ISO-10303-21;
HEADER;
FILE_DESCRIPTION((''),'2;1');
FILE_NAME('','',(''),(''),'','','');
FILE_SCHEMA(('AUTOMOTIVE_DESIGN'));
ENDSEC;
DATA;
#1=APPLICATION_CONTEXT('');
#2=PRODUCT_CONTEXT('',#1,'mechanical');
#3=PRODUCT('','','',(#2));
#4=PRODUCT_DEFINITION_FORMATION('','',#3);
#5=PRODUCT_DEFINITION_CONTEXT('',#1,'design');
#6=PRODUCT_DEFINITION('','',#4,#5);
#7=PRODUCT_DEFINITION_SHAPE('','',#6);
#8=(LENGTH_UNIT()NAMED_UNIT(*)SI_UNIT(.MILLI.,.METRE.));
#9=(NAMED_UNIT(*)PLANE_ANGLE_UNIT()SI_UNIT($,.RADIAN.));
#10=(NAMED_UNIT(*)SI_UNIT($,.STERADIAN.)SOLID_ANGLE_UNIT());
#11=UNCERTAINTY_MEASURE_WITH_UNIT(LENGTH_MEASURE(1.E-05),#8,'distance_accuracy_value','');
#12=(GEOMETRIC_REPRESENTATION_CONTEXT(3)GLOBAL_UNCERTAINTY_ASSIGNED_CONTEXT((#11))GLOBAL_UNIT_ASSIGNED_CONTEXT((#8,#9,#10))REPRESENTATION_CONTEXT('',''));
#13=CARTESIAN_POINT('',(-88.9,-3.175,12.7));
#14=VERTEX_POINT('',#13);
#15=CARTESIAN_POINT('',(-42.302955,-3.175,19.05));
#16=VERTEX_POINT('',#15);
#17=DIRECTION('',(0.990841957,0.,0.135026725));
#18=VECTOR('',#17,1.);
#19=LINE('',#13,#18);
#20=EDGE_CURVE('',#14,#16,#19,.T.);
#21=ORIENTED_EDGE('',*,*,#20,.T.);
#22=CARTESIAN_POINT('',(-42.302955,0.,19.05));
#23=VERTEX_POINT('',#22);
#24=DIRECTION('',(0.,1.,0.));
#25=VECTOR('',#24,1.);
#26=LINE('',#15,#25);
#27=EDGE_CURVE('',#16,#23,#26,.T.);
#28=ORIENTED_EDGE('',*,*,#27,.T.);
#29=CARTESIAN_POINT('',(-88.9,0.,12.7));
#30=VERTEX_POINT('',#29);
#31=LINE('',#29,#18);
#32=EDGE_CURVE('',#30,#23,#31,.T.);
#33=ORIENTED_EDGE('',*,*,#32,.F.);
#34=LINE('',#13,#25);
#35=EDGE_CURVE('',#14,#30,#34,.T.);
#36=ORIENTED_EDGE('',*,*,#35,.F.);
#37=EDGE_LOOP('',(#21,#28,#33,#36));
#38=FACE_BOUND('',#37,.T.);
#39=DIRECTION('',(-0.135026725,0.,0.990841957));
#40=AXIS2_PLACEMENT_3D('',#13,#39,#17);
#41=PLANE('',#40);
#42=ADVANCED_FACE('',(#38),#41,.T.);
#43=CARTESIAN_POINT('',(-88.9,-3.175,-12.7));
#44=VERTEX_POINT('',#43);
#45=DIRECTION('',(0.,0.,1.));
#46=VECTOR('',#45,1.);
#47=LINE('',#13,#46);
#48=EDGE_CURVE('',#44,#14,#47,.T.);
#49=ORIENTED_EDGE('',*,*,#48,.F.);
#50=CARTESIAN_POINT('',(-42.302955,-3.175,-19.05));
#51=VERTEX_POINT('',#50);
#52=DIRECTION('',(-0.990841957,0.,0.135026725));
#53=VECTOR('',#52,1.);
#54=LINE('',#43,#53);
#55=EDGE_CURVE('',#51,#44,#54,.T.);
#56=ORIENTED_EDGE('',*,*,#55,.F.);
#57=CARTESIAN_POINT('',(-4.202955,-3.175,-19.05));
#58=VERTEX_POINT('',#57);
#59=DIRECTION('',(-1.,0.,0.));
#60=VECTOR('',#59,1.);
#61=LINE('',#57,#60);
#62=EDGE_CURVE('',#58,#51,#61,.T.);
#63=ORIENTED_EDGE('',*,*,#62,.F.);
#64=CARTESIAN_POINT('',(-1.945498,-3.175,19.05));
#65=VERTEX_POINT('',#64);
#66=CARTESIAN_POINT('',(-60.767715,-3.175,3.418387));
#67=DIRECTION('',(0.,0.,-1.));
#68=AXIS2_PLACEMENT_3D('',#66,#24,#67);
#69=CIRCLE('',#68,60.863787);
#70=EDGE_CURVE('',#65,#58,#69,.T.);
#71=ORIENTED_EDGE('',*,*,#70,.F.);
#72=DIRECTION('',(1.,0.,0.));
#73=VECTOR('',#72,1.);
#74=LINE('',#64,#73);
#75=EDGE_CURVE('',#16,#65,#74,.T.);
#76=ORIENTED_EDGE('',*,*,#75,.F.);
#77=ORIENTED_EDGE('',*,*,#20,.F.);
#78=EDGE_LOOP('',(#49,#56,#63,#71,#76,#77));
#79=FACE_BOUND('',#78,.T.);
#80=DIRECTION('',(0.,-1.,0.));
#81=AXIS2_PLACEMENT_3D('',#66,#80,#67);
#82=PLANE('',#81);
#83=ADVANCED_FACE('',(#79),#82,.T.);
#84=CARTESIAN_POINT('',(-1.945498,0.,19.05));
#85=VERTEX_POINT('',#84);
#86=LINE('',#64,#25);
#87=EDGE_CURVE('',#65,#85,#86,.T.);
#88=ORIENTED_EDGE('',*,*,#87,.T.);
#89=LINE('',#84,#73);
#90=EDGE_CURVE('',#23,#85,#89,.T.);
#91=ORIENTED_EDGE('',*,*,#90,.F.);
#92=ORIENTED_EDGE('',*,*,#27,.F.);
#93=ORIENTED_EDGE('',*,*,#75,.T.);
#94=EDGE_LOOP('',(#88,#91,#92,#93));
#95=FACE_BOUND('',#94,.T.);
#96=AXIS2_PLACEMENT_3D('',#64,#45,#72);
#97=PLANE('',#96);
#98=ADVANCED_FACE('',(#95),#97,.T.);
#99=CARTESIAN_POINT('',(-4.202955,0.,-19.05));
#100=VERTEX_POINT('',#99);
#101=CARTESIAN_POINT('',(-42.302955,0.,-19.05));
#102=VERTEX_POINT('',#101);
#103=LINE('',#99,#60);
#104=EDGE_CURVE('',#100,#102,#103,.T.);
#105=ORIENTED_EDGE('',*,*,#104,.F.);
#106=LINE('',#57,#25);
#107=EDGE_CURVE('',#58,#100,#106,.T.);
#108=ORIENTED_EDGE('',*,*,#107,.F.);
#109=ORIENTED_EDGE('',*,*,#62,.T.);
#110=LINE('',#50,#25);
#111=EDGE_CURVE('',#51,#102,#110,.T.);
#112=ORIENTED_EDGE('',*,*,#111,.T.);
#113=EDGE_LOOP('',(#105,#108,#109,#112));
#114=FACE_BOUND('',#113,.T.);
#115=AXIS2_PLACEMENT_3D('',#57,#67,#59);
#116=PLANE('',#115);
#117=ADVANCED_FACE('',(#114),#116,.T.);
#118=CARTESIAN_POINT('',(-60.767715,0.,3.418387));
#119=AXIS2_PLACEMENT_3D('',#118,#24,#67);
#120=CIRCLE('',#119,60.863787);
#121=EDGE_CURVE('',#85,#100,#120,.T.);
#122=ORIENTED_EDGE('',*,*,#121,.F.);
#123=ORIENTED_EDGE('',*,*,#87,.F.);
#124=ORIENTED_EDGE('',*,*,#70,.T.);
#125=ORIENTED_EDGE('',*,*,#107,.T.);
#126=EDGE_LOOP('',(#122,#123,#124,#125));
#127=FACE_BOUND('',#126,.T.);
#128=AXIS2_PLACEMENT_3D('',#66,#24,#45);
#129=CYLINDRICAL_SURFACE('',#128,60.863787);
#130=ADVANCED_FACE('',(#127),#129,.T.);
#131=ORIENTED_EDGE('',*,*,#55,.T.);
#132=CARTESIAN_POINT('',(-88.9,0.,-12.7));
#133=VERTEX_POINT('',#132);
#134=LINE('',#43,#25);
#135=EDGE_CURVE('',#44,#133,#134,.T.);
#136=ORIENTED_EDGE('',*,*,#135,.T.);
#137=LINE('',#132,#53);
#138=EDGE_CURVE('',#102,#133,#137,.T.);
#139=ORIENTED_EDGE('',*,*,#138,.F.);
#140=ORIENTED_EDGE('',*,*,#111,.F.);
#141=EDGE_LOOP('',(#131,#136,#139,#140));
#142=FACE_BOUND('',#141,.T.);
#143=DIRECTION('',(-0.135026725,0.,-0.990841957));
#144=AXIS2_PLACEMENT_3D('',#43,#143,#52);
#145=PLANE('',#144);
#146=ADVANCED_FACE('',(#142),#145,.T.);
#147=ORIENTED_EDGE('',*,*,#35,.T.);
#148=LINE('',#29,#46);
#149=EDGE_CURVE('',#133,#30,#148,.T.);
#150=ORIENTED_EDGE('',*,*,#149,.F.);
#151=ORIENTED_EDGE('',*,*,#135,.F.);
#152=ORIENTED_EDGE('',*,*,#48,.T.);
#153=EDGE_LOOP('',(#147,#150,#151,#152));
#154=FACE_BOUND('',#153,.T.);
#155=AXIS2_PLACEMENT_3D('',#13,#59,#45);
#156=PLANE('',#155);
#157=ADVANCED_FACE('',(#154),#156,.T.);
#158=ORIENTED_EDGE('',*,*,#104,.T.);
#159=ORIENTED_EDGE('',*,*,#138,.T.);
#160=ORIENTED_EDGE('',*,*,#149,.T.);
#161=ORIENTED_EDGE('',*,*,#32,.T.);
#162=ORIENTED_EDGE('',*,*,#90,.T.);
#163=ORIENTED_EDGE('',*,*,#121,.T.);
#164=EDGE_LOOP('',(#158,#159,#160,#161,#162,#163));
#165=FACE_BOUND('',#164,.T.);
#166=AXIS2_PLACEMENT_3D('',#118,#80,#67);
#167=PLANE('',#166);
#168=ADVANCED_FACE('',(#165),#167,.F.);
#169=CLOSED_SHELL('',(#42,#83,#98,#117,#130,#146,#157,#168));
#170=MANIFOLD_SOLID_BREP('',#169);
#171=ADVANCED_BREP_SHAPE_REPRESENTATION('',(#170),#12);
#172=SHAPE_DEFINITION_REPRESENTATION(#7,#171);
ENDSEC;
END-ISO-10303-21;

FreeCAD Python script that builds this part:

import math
import FreeCAD as App
import Part
import Sketcher
Q = App.Units.Quantity

doc = App.newDocument("Part")
body = doc.addObject("PartDesign::Body", "Body")

# Sketch on XZ plane
sketch1 = body.newObject("Sketcher::SketchObject", "Sketch")
sketch1.AttachmentSupport = (doc.getObject("XZ_Plane"), [""])
sketch1.MapMode = "FlatFace"
sketch1.addGeometry([
    Part.LineSegment(App.Vector(-4, -19, 0), App.Vector(-42, -19, 0)),  # 0
    Part.LineSegment(App.Vector(-42, -19, 0), App.Vector(-89, -13, 0)),  # 1
    Part.LineSegment(App.Vector(-89, -13, 0), App.Vector(-89, 13, 0)),  # 2
    Part.LineSegment(App.Vector(-89, 13, 0), App.Vector(-42, 19, 0)),  # 3
    Part.LineSegment(App.Vector(-42, 19, 0), App.Vector(-2, 19, 0)),  # 4
    Part.ArcOfCircle(Part.Circle(App.Vector(-61, 3, 0), App.Vector(0, 0, 1), 61), math.radians(-22), math.radians(15)),  # 5
], False)
sketch1.addConstraint([
    Sketcher.Constraint("Coincident", 0, 2, 1, 1),
    Sketcher.Constraint("Coincident", 1, 2, 2, 1),
    Sketcher.Constraint("Coincident", 2, 2, 3, 1),
    Sketcher.Constraint("Coincident", 3, 2, 4, 1),
    Sketcher.Constraint("Coincident", 4, 2, 5, 2),
    Sketcher.Constraint("Coincident", 5, 1, 0, 1),
    Sketcher.Constraint("Horizontal", 0),
    Sketcher.Constraint("Vertical", 2),
    Sketcher.Constraint("Horizontal", 4),
    Sketcher.Constraint("Symmetric", 0, 2, 3, 2, -1),
    Sketcher.Constraint("Equal", 1, 3),
    Sketcher.Constraint("DistanceY", 2, 1, 2, 2, Q("1 in")),
    Sketcher.Constraint("DistanceX", 0, 2, 0, 1, Q("1.5 in")),
    Sketcher.Constraint("DistanceX", 1, 2, -1, 1, Q("3.5 in")),
    Sketcher.Constraint("DistanceY", 0, 2, 3, 2, Q("1.5 in")),
    Sketcher.Constraint("Radius", 5, Q("60.863787 mm")),
    Sketcher.Constraint("DistanceX", 4, 1, 4, 2, Q("40.357457 mm")),
    Sketcher.Constraint("Distance", 1, Q("47.027727 mm")),
])
pad1 = body.newObject("PartDesign::Pad", "Pad")
pad1.Profile = sketch1
pad1.Length = Q("0.125 in")

doc.recompute()
